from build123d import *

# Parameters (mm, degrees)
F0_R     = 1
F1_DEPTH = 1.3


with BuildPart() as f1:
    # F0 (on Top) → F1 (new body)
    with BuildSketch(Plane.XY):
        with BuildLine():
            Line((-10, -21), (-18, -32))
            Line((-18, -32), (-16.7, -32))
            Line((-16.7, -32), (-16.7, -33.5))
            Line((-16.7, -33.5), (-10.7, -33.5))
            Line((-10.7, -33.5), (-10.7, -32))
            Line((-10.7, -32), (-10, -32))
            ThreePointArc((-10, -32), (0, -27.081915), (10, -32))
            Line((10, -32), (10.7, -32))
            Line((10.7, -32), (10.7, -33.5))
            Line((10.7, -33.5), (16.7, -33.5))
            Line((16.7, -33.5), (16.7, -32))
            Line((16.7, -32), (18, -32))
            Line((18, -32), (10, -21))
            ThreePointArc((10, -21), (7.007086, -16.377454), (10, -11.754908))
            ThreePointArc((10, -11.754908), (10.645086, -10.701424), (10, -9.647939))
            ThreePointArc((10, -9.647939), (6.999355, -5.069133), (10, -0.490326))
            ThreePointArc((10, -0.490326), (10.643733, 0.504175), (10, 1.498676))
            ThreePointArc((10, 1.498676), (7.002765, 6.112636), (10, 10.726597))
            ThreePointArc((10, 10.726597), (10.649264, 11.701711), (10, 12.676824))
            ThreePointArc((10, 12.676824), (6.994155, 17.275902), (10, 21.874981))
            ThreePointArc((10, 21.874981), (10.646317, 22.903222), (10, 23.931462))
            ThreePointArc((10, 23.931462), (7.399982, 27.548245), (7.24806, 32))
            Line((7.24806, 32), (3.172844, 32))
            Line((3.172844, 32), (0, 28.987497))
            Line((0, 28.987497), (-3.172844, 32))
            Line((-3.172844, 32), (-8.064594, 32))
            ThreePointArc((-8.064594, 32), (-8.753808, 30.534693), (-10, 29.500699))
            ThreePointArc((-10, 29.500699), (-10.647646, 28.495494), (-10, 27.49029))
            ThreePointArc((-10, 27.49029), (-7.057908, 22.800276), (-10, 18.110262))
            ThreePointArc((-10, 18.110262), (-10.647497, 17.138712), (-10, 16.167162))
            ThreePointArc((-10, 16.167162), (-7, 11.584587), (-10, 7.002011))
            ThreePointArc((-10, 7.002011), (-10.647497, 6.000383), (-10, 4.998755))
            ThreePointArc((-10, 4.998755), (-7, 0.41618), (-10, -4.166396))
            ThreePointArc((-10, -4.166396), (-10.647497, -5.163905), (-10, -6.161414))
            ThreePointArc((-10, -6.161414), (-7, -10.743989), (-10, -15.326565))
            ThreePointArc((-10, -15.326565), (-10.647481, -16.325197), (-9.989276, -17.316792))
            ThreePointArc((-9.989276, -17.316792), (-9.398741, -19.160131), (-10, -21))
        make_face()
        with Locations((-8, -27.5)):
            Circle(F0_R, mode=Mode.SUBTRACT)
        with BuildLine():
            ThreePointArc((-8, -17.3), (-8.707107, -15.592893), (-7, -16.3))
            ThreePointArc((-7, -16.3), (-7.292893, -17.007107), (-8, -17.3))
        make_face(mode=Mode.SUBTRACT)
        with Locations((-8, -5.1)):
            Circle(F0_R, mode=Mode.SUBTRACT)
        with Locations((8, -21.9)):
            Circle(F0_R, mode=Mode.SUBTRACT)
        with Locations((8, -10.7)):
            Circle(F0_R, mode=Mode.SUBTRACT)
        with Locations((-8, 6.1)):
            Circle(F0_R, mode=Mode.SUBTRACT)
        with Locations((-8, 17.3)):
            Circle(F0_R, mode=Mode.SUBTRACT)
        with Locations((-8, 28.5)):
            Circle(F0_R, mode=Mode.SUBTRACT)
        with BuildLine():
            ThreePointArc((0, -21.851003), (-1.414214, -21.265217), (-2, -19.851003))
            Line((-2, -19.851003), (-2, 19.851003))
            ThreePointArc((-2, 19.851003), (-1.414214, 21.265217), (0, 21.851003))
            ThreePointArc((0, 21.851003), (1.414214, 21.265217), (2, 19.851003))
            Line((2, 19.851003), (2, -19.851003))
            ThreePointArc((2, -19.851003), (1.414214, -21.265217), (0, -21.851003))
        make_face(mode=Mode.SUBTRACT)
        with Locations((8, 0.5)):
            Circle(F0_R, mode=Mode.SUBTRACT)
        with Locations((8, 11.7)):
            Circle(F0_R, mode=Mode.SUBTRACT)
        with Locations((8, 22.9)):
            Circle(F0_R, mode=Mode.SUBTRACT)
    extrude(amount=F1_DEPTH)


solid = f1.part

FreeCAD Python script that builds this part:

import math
import FreeCAD as App
import Part
import Sketcher

doc = App.newDocument("Part")
body = doc.addObject("PartDesign::Body", "Body")

# Sketch on XY plane
sketch1 = body.newObject("Sketcher::SketchObject", "Sketch")
sketch1.AttachmentSupport = (doc.getObject("XY_Plane"), [""])
sketch1.MapMode = "FlatFace"
sketch1.addGeometry(Part.LineSegment(App.Vector(-10, -21, 0), App.Vector(-18, -32, 0)), False)
sketch1.addGeometry(Part.LineSegment(App.Vector(-18, -32, 0), App.Vector(-16.7, -32, 0)), False)
sketch1.addGeometry(Part.LineSegment(App.Vector(-16.7, -32, 0), App.Vector(-16.7, -33.5, 0)), False)
sketch1.addGeometry(Part.LineSegment(App.Vector(-16.7, -33.5, 0), App.Vector(-10.7, -33.5, 0)), False)
sketch1.addGeometry(Part.LineSegment(App.Vector(-10.7, -33.5, 0), App.Vector(-10.7, -32, 0)), False)
sketch1.addGeometry(Part.LineSegment(App.Vector(-10.7, -32, 0), App.Vector(-10, -32, 0)), False)
sketch1.addGeometry(Part.ArcOfCircle(Part.Circle(App.Vector(0, -39.707516, 0), App.Vector(0, 0, 1), 12.625601), math.radians(37.623297), math.radians(142.376703)), False)
sketch1.addGeometry(Part.LineSegment(App.Vector(10, -32, 0), App.Vector(10.7, -32, 0)), False)
sketch1.addGeometry(Part.LineSegment(App.Vector(10.7, -32, 0), App.Vector(10.7, -33.5, 0)), False)
sketch1.addGeometry(Part.LineSegment(App.Vector(10.7, -33.5, 0), App.Vector(16.7, -33.5, 0)), False)
sketch1.addGeometry(Part.LineSegment(App.Vector(16.7, -33.5, 0), App.Vector(16.7, -32, 0)), False)
sketch1.addGeometry(Part.LineSegment(App.Vector(16.7, -32, 0), App.Vector(18, -32, 0)), False)
sketch1.addGeometry(Part.LineSegment(App.Vector(18, -32, 0), App.Vector(10, -21, 0)), False)
sketch1.addGeometry(Part.ArcOfCircle(Part.Circle(App.Vector(12.073297, -16.377454, 0), App.Vector(0, 0, 1), 5.066211), math.radians(114.157109), math.radians(245.842891)), False)
sketch1.addGeometry(Part.ArcOfCircle(Part.Circle(App.Vector(9.462325, -10.701424, 0), App.Vector(0, 0, 1), 1.182761), math.radians(-62.961233), math.radians(62.961233)), False)
sketch1.addGeometry(Part.ArcOfCircle(Part.Circle(App.Vector(11.993171, -5.069133, 0), App.Vector(0, 0, 1), 4.993816), math.radians(113.523669), math.radians(246.476331)), False)
sketch1.addGeometry(Part.ArcOfCircle(Part.Circle(App.Vector(9.553666, 0.504175, 0), App.Vector(0, 0, 1), 1.090067), math.radians(-65.829355), math.radians(65.829355)), False)
sketch1.addGeometry(Part.ArcOfCircle(Part.Circle(App.Vector(12.052761, 6.112636, 0), App.Vector(0, 0, 1), 5.049996), math.radians(113.984384), math.radians(246.015616)), False)
sketch1.addGeometry(Part.ArcOfCircle(Part.Circle(App.Vector(9.592383, 11.701711, 0), App.Vector(0, 0, 1), 1.056881), math.radians(-67.314075), math.radians(67.314075)), False)
sketch1.addGeometry(Part.ArcOfCircle(Part.Circle(App.Vector(12.015476, 17.275903, 0), App.Vector(0, 0, 1), 5.021321), math.radians(113.664706), math.radians(246.335294)), False)
sketch1.addGeometry(Part.ArcOfCircle(Part.Circle(App.Vector(9.505233, 22.903222, 0), App.Vector(0, 0, 1), 1.141084), math.radians(-64.304143), math.radians(64.304143)), False)
sketch1.addGeometry(Part.ArcOfCircle(Part.Circle(App.Vector(14.660164, 30.024478, 0), App.Vector(0, 0, 1), 7.670852), math.radians(165.076082), math.radians(232.589904)), False)
sketch1.addGeometry(Part.LineSegment(App.Vector(7.24806, 32, 0), App.Vector(3.172844, 32, 0)), False)
sketch1.addGeometry(Part.LineSegment(App.Vector(3.172844, 32, 0), App.Vector(0, 28.987497, 0)), False)
sketch1.addGeometry(Part.LineSegment(App.Vector(0, 28.987497, 0), App.Vector(-3.172844, 32, 0)), False)
sketch1.addGeometry(Part.LineSegment(App.Vector(-3.172844, 32, 0), App.Vector(-8.064594, 32, 0)), False)
sketch1.addGeometry(Part.ArcOfCircle(Part.Circle(App.Vector(-11.696799, 32.813683, 0), App.Vector(0, 0, 1), 3.722229), math.radians(-62.880008), math.radians(-12.626882)), False)
sketch1.addGeometry(Part.ArcOfCircle(Part.Circle(App.Vector(-9.543739, 28.495494, 0), App.Vector(0, 0, 1), 1.103907), math.radians(114.413218), math.radians(245.586782)), False)
sketch1.addGeometry(Part.ArcOfCircle(Part.Circle(App.Vector(-12.26715, 22.800276, 0), App.Vector(0, 0, 1), 5.209242), math.radians(-64.200908), math.radians(64.200908)), False)
sketch1.addGeometry(Part.ArcOfCircle(Part.Circle(App.Vector(-9.594858, 17.138712, 0), App.Vector(0, 0, 1), 1.052639), math.radians(112.636443), math.radians(247.363557)), False)
sketch1.addGeometry(Part.ArcOfCircle(Part.Circle(App.Vector(-12, 11.584587, 0), App.Vector(0, 0, 1), 5), math.radians(-66.421824), math.radians(66.421824)), False)
sketch1.addGeometry(Part.ArcOfCircle(Part.Circle(App.Vector(-9.549028, 6.000383, 0), App.Vector(0, 0, 1), 1.098469), math.radians(114.239142), math.radians(245.760858)), False)
sketch1.addGeometry(Part.ArcOfCircle(Part.Circle(App.Vector(-12, 0.416179, 0), App.Vector(0, 0, 1), 5), math.radians(-66.421824), math.radians(66.421824)), False)
sketch1.addGeometry(Part.ArcOfCircle(Part.Circle(App.Vector(-9.555386, -5.163905, 0), App.Vector(0, 0, 1), 1.092111), math.radians(114.023671), math.radians(245.976329)), False)
sketch1.addGeometry(Part.ArcOfCircle(Part.Circle(App.Vector(-12, -10.743989, 0), App.Vector(0, 0, 1), 5), math.radians(-66.421824), math.radians(66.421824)), False)
sketch1.addGeometry(Part.ArcOfCircle(Part.Circle(App.Vector(-9.562645, -16.319351, 0), App.Vector(0, 0, 1), 1.084852), math.radians(113.775068), math.radians(246.842384)), False)
sketch1.addGeometry(Part.ArcOfCircle(Part.Circle(App.Vector(-12.542404, -19.150978, 0), App.Vector(0, 0, 1), 3.143676), math.radians(-36.027389), math.radians(35.693746)), False)
sketch1.addGeometry(Part.Circle(App.Vector(-8, -27.5, 0), App.Vector(0, 0, 1), 1), False)
sketch1.addGeometry(Part.ArcOfCircle(Part.Circle(App.Vector(-7.999999, -16.300001, 0), App.Vector(0, 0, 1), 0.999999), math.radians(-90.000043), math.radians(0.000043)), False)
sketch1.addGeometry(Part.ArcOfCircle(Part.Circle(App.Vector(-8, -16.3, 0), App.Vector(0, 0, 1), 1), math.radians(-0.000007), math.radians(270.000007)), False)
sketch1.addGeometry(Part.Circle(App.Vector(-8, -5.1, 0), App.Vector(0, 0, 1), 1), False)
sketch1.addGeometry(Part.Circle(App.Vector(8, -21.9, 0), App.Vector(0, 0, 1), 1), False)
sketch1.addGeometry(Part.ArcOfCircle(Part.Circle(App.Vector(0.000001, -19.851004, 0), App.Vector(0, 0, 1), 1.999999), math.radians(-90.000043), math.radians(0.000043)), False)
sketch1.addGeometry(Part.ArcOfCircle(Part.Circle(App.Vector(-0.000001, -19.851004, 0), App.Vector(0, 0, 1), 1.999999), math.radians(179.999957), math.radians(270.000043)), False)
sketch1.addGeometry(Part.LineSegment(App.Vector(-2, -19.851003, 0), App.Vector(-2, 19.851003, 0)), False)
sketch1.addGeometry(Part.ArcOfCircle(Part.Circle(App.Vector(-0.000001, 19.851004, 0), App.Vector(0, 0, 1), 1.999999), math.radians(89.999957), math.radians(180.000043)), False)
sketch1.addGeometry(Part.ArcOfCircle(Part.Circle(App.Vector(0.000001, 19.851004, 0), App.Vector(0, 0, 1), 1.999999), math.radians(-0.000043), math.radians(90.000043)), False)
sketch1.addGeometry(Part.LineSegment(App.Vector(2, 19.851003, 0), App.Vector(2, -19.851003, 0)), False)
sketch1.addGeometry(Part.Circle(App.Vector(8, -10.7, 0), App.Vector(0, 0, 1), 1), False)
sketch1.addGeometry(Part.Circle(App.Vector(-8, 6.1, 0), App.Vector(0, 0, 1), 1), False)
sketch1.addGeometry(Part.Circle(App.Vector(-8, 17.3, 0), App.Vector(0, 0, 1), 1), False)
sketch1.addGeometry(Part.Circle(App.Vector(-8, 28.5, 0), App.Vector(0, 0, 1), 1), False)
sketch1.addGeometry(Part.Circle(App.Vector(8, 0.5, 0), App.Vector(0, 0, 1), 1), False)
sketch1.addGeometry(Part.Circle(App.Vector(8, 11.7, 0), App.Vector(0, 0, 1), 1), False)
sketch1.addGeometry(Part.Circle(App.Vector(8, 22.9, 0), App.Vector(0, 0, 1), 1), False)
sketch1.addConstraint(Sketcher.Constraint("Coincident", 0, 2, 1, 1))
sketch1.addConstraint(Sketcher.Constraint("Coincident", 1, 2, 2, 1))
sketch1.addConstraint(Sketcher.Constraint("Coincident", 2, 2, 3, 1))
sketch1.addConstraint(Sketcher.Constraint("Coincident", 3, 2, 4, 1))
sketch1.addConstraint(Sketcher.Constraint("Coincident", 4, 2, 5, 1))
sketch1.addConstraint(Sketcher.Constraint("Coincident", 5, 2, 6, 2))
sketch1.addConstraint(Sketcher.Constraint("Coincident", 6, 1, 7, 1))
sketch1.addConstraint(Sketcher.Constraint("Coincident", 7, 2, 8, 1))
sketch1.addConstraint(Sketcher.Constraint("Coincident", 8, 2, 9, 1))
sketch1.addConstraint(Sketcher.Constraint("Coincident", 9, 2, 10, 1))
sketch1.addConstraint(Sketcher.Constraint("Coincident", 10, 2, 11, 1))
sketch1.addConstraint(Sketcher.Constraint("Coincident", 11, 2, 12, 1))
sketch1.addConstraint(Sketcher.Constraint("Coincident", 12, 2, 13, 2))
sketch1.addConstraint(Sketcher.Constraint("Coincident", 13, 1, 14, 1))
sketch1.addConstraint(Sketcher.Constraint("Coincident", 14, 2, 15, 2))
sketch1.addConstraint(Sketcher.Constraint("Coincident", 15, 1, 16, 1))
sketch1.addConstraint(Sketcher.Constraint("Coincident", 16, 2, 17, 2))
sketch1.addConstraint(Sketcher.Constraint("Coincident", 17, 1, 18, 1))
sketch1.addConstraint(Sketcher.Constraint("Coincident", 18, 2, 19, 2))
sketch1.addConstraint(Sketcher.Constraint("Coincident", 19, 1, 20, 1))
sketch1.addConstraint(Sketcher.Constraint("Coincident", 20, 2, 21, 2))
sketch1.addConstraint(Sketcher.Constraint("Coincident", 21, 1, 22, 1))
sketch1.addConstraint(Sketcher.Constraint("Coincident", 22, 2, 23, 1))
sketch1.addConstraint(Sketcher.Constraint("Coincident", 23, 2, 24, 1))
sketch1.addConstraint(Sketcher.Constraint("Coincident", 24, 2, 25, 1))
sketch1.addConstraint(Sketcher.Constraint("Coincident", 25, 2, 26, 2))
sketch1.addConstraint(Sketcher.Constraint("Coincident", 26, 1, 27, 1))
sketch1.addConstraint(Sketcher.Constraint("Coincident", 27, 2, 28, 2))
sketch1.addConstraint(Sketcher.Constraint("Coincident", 28, 1, 29, 1))
sketch1.addConstraint(Sketcher.Constraint("Coincident", 29, 2, 30, 2))
sketch1.addConstraint(Sketcher.Constraint("Coincident", 30, 1, 31, 1))
sketch1.addConstraint(Sketcher.Constraint("Coincident", 31, 2, 32, 2))
sketch1.addConstraint(Sketcher.Constraint("Coincident", 32, 1, 33, 1))
sketch1.addConstraint(Sketcher.Constraint("Coincident", 33, 2, 34, 2))
sketch1.addConstraint(Sketcher.Constraint("Coincident", 34, 1, 35, 1))
sketch1.addConstraint(Sketcher.Constraint("Coincident", 35, 2, 36, 2))
sketch1.addConstraint(Sketcher.Constraint("Tangent", 36, 1, 0, 1))
sketch1.addConstraint(Sketcher.Constraint("Tangent", 38, 1, 39, 2))
sketch1.addConstraint(Sketcher.Constraint("Coincident", 39, 1, 38, 2))
sketch1.addConstraint(Sketcher.Constraint("Tangent", 42, 1, 43, 2))
sketch1.addConstraint(Sketcher.Constraint("Tangent", 43, 1, 44, 1))
sketch1.addConstraint(Sketcher.Constraint("Tangent", 44, 2, 45, 2))
sketch1.addConstraint(Sketcher.Constraint("Tangent", 45, 1, 46, 2))
sketch1.addConstraint(Sketcher.Constraint("Tangent", 46, 1, 47, 1))
sketch1.addConstraint(Sketcher.Constraint("Tangent", 47, 2, 42, 2))
sketch1.addConstraint(Sketcher.Constraint("Horizontal", 1))
sketch1.addConstraint(Sketcher.Constraint("Vertical", 2))
sketch1.addConstraint(Sketcher.Constraint("Horizontal", 3))
sketch1.addConstraint(Sketcher.Constraint("Vertical", 4))
sketch1.addConstraint(Sketcher.Constraint("Horizontal", 5))
sketch1.addConstraint(Sketcher.Constraint("Horizontal", 7))
sketch1.addConstraint(Sketcher.Constraint("Vertical", 8))
sketch1.addConstraint(Sketcher.Constraint("Horizontal", 9))
sketch1.addConstraint(Sketcher.Constraint("Vertical", 10))
sketch1.addConstraint(Sketcher.Constraint("Horizontal", 11))
sketch1.addConstraint(Sketcher.Constraint("Horizontal", 22))
sketch1.addConstraint(Sketcher.Constraint("Horizontal", 25))
sketch1.addConstraint(Sketcher.Constraint("Vertical", 44))
sketch1.addConstraint(Sketcher.Constraint("Vertical", 47))
sketch1.addConstraint(Sketcher.Constraint("Equal", 30, 32))
sketch1.addConstraint(Sketcher.Constraint("Equal", 32, 34))
sketch1.addConstraint(Sketcher.Constraint("Equal", 37, 38))
sketch1.addConstraint(Sketcher.Constraint("Equal", 39, 40))
sketch1.addConstraint(Sketcher.Constraint("Equal", 40, 41))
sketch1.addConstraint(Sketcher.Constraint("Equal", 42, 43))
sketch1.addConstraint(Sketcher.Constraint("Equal", 43, 45))
sketch1.addConstraint(Sketcher.Constraint("Equal", 41, 48))
sketch1.addConstraint(Sketcher.Constraint("Equal", 48, 49))
sketch1.addConstraint(Sketcher.Constraint("Equal", 49, 50))
sketch1.addConstraint(Sketcher.Constraint("Equal", 50, 51))
sketch1.addConstraint(Sketcher.Constraint("Equal", 51, 52))
sketch1.addConstraint(Sketcher.Constraint("Equal", 52, 53))
sketch1.addConstraint(Sketcher.Constraint("Equal", 53, 54))
sketch1.addConstraint(Sketcher.Constraint("Symmetric", 42, 3, 45, 3, -1, 1))
sketch1.addConstraint(Sketcher.Constraint("Symmetric", 5, 2, 6, 1, -2))
sketch1.addConstraint(Sketcher.Constraint("Symmetric", 3, 2, 8, 2, -2))
sketch1.addConstraint(Sketcher.Constraint("Symmetric", 1, 2, 10, 2, -2))
sketch1.addConstraint(Sketcher.Constraint("Symmetric", 22, 2, 24, 2, -2))
sketch1.addConstraint(Sketcher.Constraint("Symmetric", 12, 2, 36, 1, -2))
sketch1.addConstraint(Sketcher.Constraint("PointOnObject", 23, 2, -2))
sketch1.addConstraint(Sketcher.Constraint("PointOnObject", 42, 1, -2))
sketch1.addConstraint(Sketcher.Constraint("PointOnObject", 45, 1, -2))
sketch1.addConstraint(Sketcher.Constraint("Horizontal", 1, 2, 4, 2))
sketch1.addConstraint(Sketcher.Constraint("Horizontal", 38, 3, 39, 1))
sketch1.addConstraint(Sketcher.Constraint("Vertical", 30, 3, 32, 3))
sketch1.addConstraint(Sketcher.Constraint("Vertical", 32, 3, 34, 3))
sketch1.addConstraint(Sketcher.Constraint("Vertical", 37, 3, 38, 3))
sketch1.addConstraint(Sketcher.Constraint("Vertical", 39, 3, 40, 3))
sketch1.addConstraint(Sketcher.Constraint("Vertical", 41, 3, 48, 3))
sketch1.addConstraint(Sketcher.Constraint("Vertical", 40, 3, 49, 3))
sketch1.addConstraint(Sketcher.Constraint("Vertical", 49, 3, 50, 3))
sketch1.addConstraint(Sketcher.Constraint("Vertical", 50, 3, 51, 3))
sketch1.addConstraint(Sketcher.Constraint("Vertical", 48, 3, 52, 3))
sketch1.addConstraint(Sketcher.Constraint("Vertical", 52, 3, 53, 3))
sketch1.addConstraint(Sketcher.Constraint("Vertical", 53, 3, 54, 3))
sketch1.addConstraint(Sketcher.Constraint("Vertical", 6, 1, 12, 2))
sketch1.addConstraint(Sketcher.Constraint("Vertical", 12, 2, 13, 1))
sketch1.addConstraint(Sketcher.Constraint("Vertical", 13, 1, 14, 2))
sketch1.addConstraint(Sketcher.Constraint("Vertical", 14, 2, 15, 1))
sketch1.addConstraint(Sketcher.Constraint("Vertical", 15, 1, 16, 2))
sketch1.addConstraint(Sketcher.Constraint("Vertical", 16, 2, 17, 1))
sketch1.addConstraint(Sketcher.Constraint("Vertical", 17, 1, 18, 2))
sketch1.addConstraint(Sketcher.Constraint("Vertical", 18, 2, 19, 1))
sketch1.addConstraint(Sketcher.Constraint("Vertical", 19, 1, 20, 2))
sketch1.addConstraint(Sketcher.Constraint("Vertical", 5, 2, 26, 1))
sketch1.addConstraint(Sketcher.Constraint("Vertical", 26, 1, 27, 2))
sketch1.addConstraint(Sketcher.Constraint("Vertical", 27, 2, 28, 1))
sketch1.addConstraint(Sketcher.Constraint("Vertical", 28, 1, 29, 2))
sketch1.addConstraint(Sketcher.Constraint("Vertical", 29, 2, 30, 1))
sketch1.addConstraint(Sketcher.Constraint("Vertical", 30, 1, 31, 2))
sketch1.addConstraint(Sketcher.Constraint("Vertical", 31, 2, 32, 1))
sketch1.addConstraint(Sketcher.Constraint("Vertical", 32, 1, 33, 2))
sketch1.addConstraint(Sketcher.Constraint("Vertical", 33, 2, 34, 1))
sketch1.addConstraint(Sketcher.Constraint("Vertical", 51, 3, 38, 1))
sketch1.addConstraint(Sketcher.Constraint("Equal", 1, 11))
sketch1.addConstraint(Sketcher.Constraint("Diameter", 37, 2.0))
sketch1.addConstraint(Sketcher.Constraint("Radius", 30, 5.0))
sketch1.addConstraint(Sketcher.Constraint("Radius", 42, 1.999999))
sketch1.addConstraint(Sketcher.Constraint("DistanceX", 3, 1, 3, 2, 6.0))
sketch1.addConstraint(Sketcher.Constraint("DistanceX", 1, 1, 1, 2, 1.3))
sketch1.addConstraint(Sketcher.Constraint("DistanceX", 5, 1, 5, 2, 0.7))
sketch1.addConstraint(Sketcher.Constraint("DistanceY", 2, 2, 2, 1, 1.5))
sketch1.addConstraint(Sketcher.Constraint("DistanceX", 30, 3, -1, 1, 12.0))
sketch1.addConstraint(Sketcher.Constraint("DistanceX", 37, 3, -1, 1, 8.0))
sketch1.addConstraint(Sketcher.Constraint("DistanceX", -1, 1, 41, 3, 8.0))
sketch1.addConstraint(Sketcher.Constraint("DistanceX", 0, 2, -1, 1, 18.0))
sketch1.addConstraint(Sketcher.Constraint("DistanceY", 0, 2, -1, 1, 32.0))
sketch1.addConstraint(Sketcher.Constraint("DistanceY", 12, 2, -1, 1, 21.0))
sketch1.addConstraint(Sketcher.Constraint("DistanceY", -1, 1, 21, 1, 32.0))
sketch1.addConstraint(Sketcher.Constraint("DistanceY", 37, 3, -1, 1, 27.5))
sketch1.addConstraint(Sketcher.Constraint("DistanceY", 38, 3, -1, 1, 16.300001))
sketch1.addConstraint(Sketcher.Constraint("DistanceY", 40, 3, -1, 1, 5.1))
sketch1.addConstraint(Sketcher.Constraint("DistanceY", 41, 3, -1, 1, 21.9))
sketch1.addConstraint(Sketcher.Constraint("DistanceY", 48, 3, -1, 1, 10.7))
sketch1.addConstraint(Sketcher.Constraint("DistanceY", -1, 1, 49, 3, 6.1))
sketch1.addConstraint(Sketcher.Constraint("DistanceY", -1, 1, 50, 3, 17.3))
sketch1.addConstraint(Sketcher.Constraint("DistanceY", -1, 1, 51, 3, 28.5))
sketch1.addConstraint(Sketcher.Constraint("DistanceY", -1, 1, 52, 3, 0.5))
sketch1.addConstraint(Sketcher.Constraint("DistanceY", -1, 1, 53, 3, 11.7))
sketch1.addConstraint(Sketcher.Constraint("DistanceY", -1, 1, 54, 3, 22.9))
sketch1.addConstraint(Sketcher.Constraint("Radius", 6, 12.625601))
sketch1.addConstraint(Sketcher.Constraint("Radius", 13, 5.066211))
sketch1.addConstraint(Sketcher.Constraint("Radius", 14, 1.182761))
sketch1.addConstraint(Sketcher.Constraint("Radius", 18, 1.056881))
sketch1.addConstraint(Sketcher.Constraint("Radius", 19, 5.021321))
sketch1.addConstraint(Sketcher.Constraint("Radius", 26, 3.722229))
sketch1.addConstraint(Sketcher.Constraint("Radius", 28, 5.209242))
sketch1.addConstraint(Sketcher.Constraint("Radius", 29, 1.052639))
sketch1.addConstraint(Sketcher.Constraint("Radius", 31, 1.098469))
sketch1.addConstraint(Sketcher.Constraint("Radius", 33, 1.092111))
sketch1.addConstraint(Sketcher.Constraint("Radius", 35, 1.084852))
sketch1.addConstraint(Sketcher.Constraint("Radius", 15, 4.993816))
sketch1.addConstraint(Sketcher.Constraint("Radius", 16, 1.090067))
sketch1.addConstraint(Sketcher.Constraint("Radius", 17, 5.049996))
sketch1.addConstraint(Sketcher.Constraint("Radius", 20, 1.141084))
sketch1.addConstraint(Sketcher.Constraint("Radius", 21, 7.670852))
sketch1.addConstraint(Sketcher.Constraint("Radius", 27, 1.103907))
sketch1.addConstraint(Sketcher.Constraint("Radius", 36, 3.143676))
sketch1.addConstraint(Sketcher.Constraint("DistanceX", 25, 2, 25, 1, 4.89175))
sketch1.addConstraint(Sketcher.Constraint("DistanceX", 26, 3, -1, 1, 11.696799))
sketch1.addConstraint(Sketcher.Constraint("DistanceY", -1, 1, 26, 1, 29.500699))
sketch1.addConstraint(Sketcher.Constraint("Distance", 23, 4.37517))
sketch1.addConstraint(Sketcher.Constraint("DistanceX", 22, 2, 22, 1, 4.075216))
sketch1.addConstraint(Sketcher.Constraint("DistanceY", 44, 1, 44, 2, 39.702006))
sketch1.addConstraint(Sketcher.Constraint("DistanceX", -1, 1, 15, 3, 11.993171))
sketch1.addConstraint(Sketcher.Constraint("DistanceX", -1, 1, 17, 3, 12.052761))
sketch1.addConstraint(Sketcher.Constraint("DistanceY", -1, 1, 18, 3, 11.701711))
sketch1.addConstraint(Sketcher.Constraint("DistanceY", -1, 1, 20, 3, 22.903222))
sketch1.addConstraint(Sketcher.Constraint("DistanceY", -1, 1, 21, 3, 30.024478))
sketch1.addConstraint(Sketcher.Constraint("DistanceX", 27, 3, -1, 1, 9.543739))
sketch1.addConstraint(Sketcher.Constraint("DistanceX", 28, 3, -1, 1, 12.26715))
sketch1.addConstraint(Sketcher.Constraint("DistanceY", -1, 1, 32, 3, 0.416179))
sketch1.addConstraint(Sketcher.Constraint("DistanceY", 34, 3, -1, 1, 10.743989))
sketch1.addConstraint(Sketcher.Constraint("DistanceY", 35, 3, -1, 1, 16.319351))
sketch1.addConstraint(Sketcher.Constraint("DistanceY", 14, 2, -1, 1, 9.647939))
sketch1.addConstraint(Sketcher.Constraint("DistanceY", -1, 1, 29, 2, 16.167162))
sketch1.addConstraint(Sketcher.Constraint("DistanceX", -1, 1, 13, 3, 12.073297))
sketch1.addConstraint(Sketcher.Constraint("DistanceX", -1, 1, 16, 3, 9.553666))
pad1 = body.newObject("PartDesign::Pad", "Pad")
pad1.Profile = sketch1
pad1.Length = 1.3

doc.recompute()
